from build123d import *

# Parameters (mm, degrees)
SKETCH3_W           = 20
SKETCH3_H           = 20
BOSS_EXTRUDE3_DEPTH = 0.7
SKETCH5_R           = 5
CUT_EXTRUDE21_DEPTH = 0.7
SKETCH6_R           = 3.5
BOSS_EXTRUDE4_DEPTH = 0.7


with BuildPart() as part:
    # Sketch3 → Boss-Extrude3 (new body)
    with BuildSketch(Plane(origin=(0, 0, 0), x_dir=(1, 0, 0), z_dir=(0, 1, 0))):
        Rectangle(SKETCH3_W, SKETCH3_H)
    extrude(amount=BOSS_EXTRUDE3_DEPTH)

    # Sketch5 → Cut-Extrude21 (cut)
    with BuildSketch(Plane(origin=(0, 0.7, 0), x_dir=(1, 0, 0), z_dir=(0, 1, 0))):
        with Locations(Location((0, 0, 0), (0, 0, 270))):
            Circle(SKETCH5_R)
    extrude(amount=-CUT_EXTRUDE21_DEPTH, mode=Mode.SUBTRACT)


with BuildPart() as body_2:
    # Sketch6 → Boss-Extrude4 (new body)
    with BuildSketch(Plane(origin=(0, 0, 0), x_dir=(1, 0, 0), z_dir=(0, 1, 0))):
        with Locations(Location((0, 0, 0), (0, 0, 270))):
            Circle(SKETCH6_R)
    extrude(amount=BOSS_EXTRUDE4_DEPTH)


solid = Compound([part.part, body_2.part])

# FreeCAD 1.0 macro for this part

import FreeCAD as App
import Part
import Sketcher
from FreeCAD import Vector


def add_polygon(sketch, points):
    """Adds a closed chain of lines whose ends are joined by coincident constraints."""
    first, n = sketch.GeometryCount, len(points)
    for a, b in zip(points, points[1:] + points[:1]):
        sketch.addGeometry(Part.LineSegment(App.Vector(*a, 0), App.Vector(*b, 0)), False)
    for i in range(n):
        sketch.addConstraint(Sketcher.Constraint("Coincident", first + i, 2, first + (i + 1) % n, 1))

doc = App.newDocument("Part")
body = doc.addObject("PartDesign::Body", "Body")

sketch1 = body.newObject("Sketcher::SketchObject", "Sketch")
sketch1.AttachmentSupport = (doc.getObject("XZ_Plane"), [""])
sketch1.MapMode = "FlatFace"
add_polygon(sketch1, [(-10, -10), (-10, 10), (10, 10), (10, -10)])
sketch1.addConstraint(Sketcher.Constraint("Vertical", 0))
sketch1.addConstraint(Sketcher.Constraint("Horizontal", 1))
sketch1.addConstraint(Sketcher.Constraint("Vertical", 2))
sketch1.addConstraint(Sketcher.Constraint("Horizontal", 3))
sketch1.addConstraint(Sketcher.Constraint("Symmetric", 0, 2, 2, 2, -1, 1))
sketch1.addConstraint(Sketcher.Constraint("Equal", 3, 0))
sketch1.addConstraint(Sketcher.Constraint("DistanceX", 1, 1, 1, 2, 20.0))
pad1 = body.newObject("PartDesign::Pad", "Pad")
pad1.Profile = sketch1
pad1.Length = 0.7
pad1.Reversed = True

sketch2 = body.newObject("Sketcher::SketchObject", "Sketch001")
sketch2.AttachmentSupport = (doc.getObject("XZ_Plane"), [""])
sketch2.MapMode = "FlatFace"
sketch2.AttachmentOffset = App.Placement(Vector(0, 0, -0.7), App.Rotation())
sketch2.addGeometry(Part.Circle(Vector(0, 0, 0), Vector(0, 0, 1), 5), False)
sketch2.addConstraint(Sketcher.Constraint("Coincident", 0, 3, -1, 1))
sketch2.addConstraint(Sketcher.Constraint("Diameter", 0, 10.0))
pocket1 = body.newObject("PartDesign::Pocket", "Pocket")
pocket1.Profile = sketch2
pocket1.Length = 0.7
pocket1.Reversed = True
body2 = doc.addObject("PartDesign::Body", "Body001")

sketch3 = body2.newObject("Sketcher::SketchObject", "Sketch002")
sketch3.AttachmentSupport = (doc.getObject("XZ_Plane001"), [""])
sketch3.MapMode = "FlatFace"
sketch3.addGeometry(Part.Circle(Vector(0, 0, 0), Vector(0, 0, 1), 3.5), False)
sketch3.addConstraint(Sketcher.Constraint("Coincident", 0, 3, -1, 1))
sketch3.addConstraint(Sketcher.Constraint("Diameter", 0, 7.0))
pad2 = body2.newObject("PartDesign::Pad", "Pad001")
pad2.Profile = sketch3
pad2.Length = 0.7
pad2.Reversed = True

doc.recompute()
